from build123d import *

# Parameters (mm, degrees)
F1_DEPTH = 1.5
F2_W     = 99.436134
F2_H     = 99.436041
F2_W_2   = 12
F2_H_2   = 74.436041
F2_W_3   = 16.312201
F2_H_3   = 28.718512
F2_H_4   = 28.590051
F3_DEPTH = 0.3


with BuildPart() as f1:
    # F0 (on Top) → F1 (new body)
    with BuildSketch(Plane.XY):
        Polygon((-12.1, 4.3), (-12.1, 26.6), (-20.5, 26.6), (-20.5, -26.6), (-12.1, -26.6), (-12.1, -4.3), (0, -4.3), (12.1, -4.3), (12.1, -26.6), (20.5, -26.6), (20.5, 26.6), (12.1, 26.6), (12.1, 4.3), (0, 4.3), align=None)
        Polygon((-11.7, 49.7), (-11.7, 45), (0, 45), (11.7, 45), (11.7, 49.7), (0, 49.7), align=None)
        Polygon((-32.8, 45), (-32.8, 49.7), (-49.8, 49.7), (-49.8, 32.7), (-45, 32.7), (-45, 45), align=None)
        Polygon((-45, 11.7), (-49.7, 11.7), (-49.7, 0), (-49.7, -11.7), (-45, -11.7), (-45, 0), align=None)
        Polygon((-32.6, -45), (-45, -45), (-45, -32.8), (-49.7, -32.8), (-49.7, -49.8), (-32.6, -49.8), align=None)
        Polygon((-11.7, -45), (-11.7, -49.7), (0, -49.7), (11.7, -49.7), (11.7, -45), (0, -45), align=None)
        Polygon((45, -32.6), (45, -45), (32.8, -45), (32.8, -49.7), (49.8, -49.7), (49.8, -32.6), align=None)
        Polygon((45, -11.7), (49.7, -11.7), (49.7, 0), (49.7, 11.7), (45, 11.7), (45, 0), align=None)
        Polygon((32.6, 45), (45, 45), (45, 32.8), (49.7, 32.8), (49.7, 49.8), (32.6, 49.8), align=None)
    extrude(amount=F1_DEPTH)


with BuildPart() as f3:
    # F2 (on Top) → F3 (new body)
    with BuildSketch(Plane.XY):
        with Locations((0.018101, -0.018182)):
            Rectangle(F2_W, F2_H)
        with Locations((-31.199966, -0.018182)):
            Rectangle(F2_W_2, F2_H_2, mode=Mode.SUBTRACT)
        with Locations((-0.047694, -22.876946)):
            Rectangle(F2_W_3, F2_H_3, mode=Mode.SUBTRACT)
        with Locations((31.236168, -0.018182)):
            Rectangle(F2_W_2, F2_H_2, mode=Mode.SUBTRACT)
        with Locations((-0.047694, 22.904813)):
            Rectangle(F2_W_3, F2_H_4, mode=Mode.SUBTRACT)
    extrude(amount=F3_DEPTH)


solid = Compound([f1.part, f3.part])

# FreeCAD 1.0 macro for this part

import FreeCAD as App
import Part
import Sketcher


def add_polygon(sketch, points):
    """Adds a closed chain of lines whose ends are joined by coincident constraints."""
    first, n = sketch.GeometryCount, len(points)
    for a, b in zip(points, points[1:] + points[:1]):
        sketch.addGeometry(Part.LineSegment(App.Vector(*a, 0), App.Vector(*b, 0)), False)
    for i in range(n):
        sketch.addConstraint(Sketcher.Constraint("Coincident", first + i, 2, first + (i + 1) % n, 1))

doc = App.newDocument("Part")
params = doc.addObject("Spreadsheet::Sheet", "Params")
for row, (alias, value) in enumerate([
    ("sketch1_width", "17 mm"),
    ("sketch1_width2", "8.4 mm"),
    ("sketch1_width3", "24.2 mm"),
    ("sketch1_width4", "23.4 mm"),
    ("sketch1_width5", "4.8 mm"),
    ("pad1_length", "1.5 mm"),
    ("sketch2_width", "12 mm"),
    ("pad2_length", "0.3 mm"),
], start=1):
    params.set(f"A{row}", alias)
    params.set(f"B{row}", "=" + value)
    params.setAlias(f"B{row}", alias)

body = doc.addObject("PartDesign::Body", "Body")
body.AllowCompound = True

sketch1 = doc.addObject("Sketcher::SketchObject", "Sketch")
body.addObject(sketch1)
sketch1.AttachmentSupport = (doc.XY_Plane, [""])
sketch1.MapMode = "FlatFace"
add_polygon(sketch1, [(-12.1, 4.3), (-12.1, 26.6), (-20.5, 26.6), (-20.5, -26.6), (-12.1, -26.6), (-12.1, -4.3), (12.1, -4.3), (12.1, -26.6), (20.5, -26.6), (20.5, 26.6), (12.1, 26.6), (12.1, 4.3)])
add_polygon(sketch1, [(-11.7, 49.7), (-11.7, 45), (11.7, 45), (11.7, 49.7)])
add_polygon(sketch1, [(-32.8, 45), (-32.8, 49.7), (-49.8, 49.7), (-49.8, 32.7), (-45, 32.7), (-45, 45)])
add_polygon(sketch1, [(-45, 11.7), (-49.7, 11.7), (-49.7, -11.7), (-45, -11.7)])
add_polygon(sketch1, [(-32.6, -45), (-45, -45), (-45, -32.8), (-49.7, -32.8), (-49.7, -49.8), (-32.6, -49.8)])
add_polygon(sketch1, [(-11.7, -45), (-11.7, -49.7), (11.7, -49.7), (11.7, -45)])
add_polygon(sketch1, [(45, -32.6), (45, -45), (32.8, -45), (32.8, -49.7), (49.8, -49.7), (49.8, -32.6)])
add_polygon(sketch1, [(45, -11.7), (49.7, -11.7), (49.7, 11.7), (45, 11.7)])
add_polygon(sketch1, [(32.6, 45), (45, 45), (45, 32.8), (49.7, 32.8), (49.7, 49.8), (32.6, 49.8)])
sketch1.addConstraint(Sketcher.Constraint("Vertical", 0))
sketch1.addConstraint(Sketcher.Constraint("Horizontal", 1))
sketch1.addConstraint(Sketcher.Constraint("Vertical", 2))
sketch1.addConstraint(Sketcher.Constraint("Horizontal", 3))
sketch1.addConstraint(Sketcher.Constraint("Vertical", 4))
sketch1.addConstraint(Sketcher.Constraint("Horizontal", 5))
sketch1.addConstraint(Sketcher.Constraint("Vertical", 6))
sketch1.addConstraint(Sketcher.Constraint("Horizontal", 7))
sketch1.addConstraint(Sketcher.Constraint("Vertical", 8))
sketch1.addConstraint(Sketcher.Constraint("Horizontal", 9))
sketch1.addConstraint(Sketcher.Constraint("Vertical", 10))
sketch1.addConstraint(Sketcher.Constraint("Horizontal", 11))
sketch1.addConstraint(Sketcher.Constraint("Vertical", 12))
sketch1.addConstraint(Sketcher.Constraint("Horizontal", 13))
sketch1.addConstraint(Sketcher.Constraint("Vertical", 14))
sketch1.addConstraint(Sketcher.Constraint("Horizontal", 15))
sketch1.addConstraint(Sketcher.Constraint("Vertical", 16))
sketch1.addConstraint(Sketcher.Constraint("Horizontal", 17))
sketch1.addConstraint(Sketcher.Constraint("Vertical", 18))
sketch1.addConstraint(Sketcher.Constraint("Horizontal", 19))
sketch1.addConstraint(Sketcher.Constraint("Vertical", 20))
sketch1.addConstraint(Sketcher.Constraint("Horizontal", 21))
sketch1.addConstraint(Sketcher.Constraint("Horizontal", 22))
sketch1.addConstraint(Sketcher.Constraint("Vertical", 23))
sketch1.addConstraint(Sketcher.Constraint("Horizontal", 24))
sketch1.addConstraint(Sketcher.Constraint("Vertical", 25))
sketch1.addConstraint(Sketcher.Constraint("Horizontal", 26))
sketch1.addConstraint(Sketcher.Constraint("Vertical", 27))
sketch1.addConstraint(Sketcher.Constraint("Horizontal", 28))
sketch1.addConstraint(Sketcher.Constraint("Vertical", 29))
sketch1.addConstraint(Sketcher.Constraint("Horizontal", 30))
sketch1.addConstraint(Sketcher.Constraint("Vertical", 31))
sketch1.addConstraint(Sketcher.Constraint("Vertical", 32))
sketch1.addConstraint(Sketcher.Constraint("Horizontal", 33))
sketch1.addConstraint(Sketcher.Constraint("Vertical", 34))
sketch1.addConstraint(Sketcher.Constraint("Horizontal", 35))
sketch1.addConstraint(Sketcher.Constraint("Vertical", 36))
sketch1.addConstraint(Sketcher.Constraint("Horizontal", 37))
sketch1.addConstraint(Sketcher.Constraint("Vertical", 38))
sketch1.addConstraint(Sketcher.Constraint("Horizontal", 39))
sketch1.addConstraint(Sketcher.Constraint("Vertical", 40))
sketch1.addConstraint(Sketcher.Constraint("Horizontal", 41))
sketch1.addConstraint(Sketcher.Constraint("Horizontal", 42))
sketch1.addConstraint(Sketcher.Constraint("Vertical", 43))
sketch1.addConstraint(Sketcher.Constraint("Horizontal", 44))
sketch1.addConstraint(Sketcher.Constraint("Vertical", 45))
sketch1.addConstraint(Sketcher.Constraint("Horizontal", 46))
sketch1.addConstraint(Sketcher.Constraint("Vertical", 47))
sketch1.addConstraint(Sketcher.Constraint("Horizontal", 48))
sketch1.addConstraint(Sketcher.Constraint("Vertical", 49))
sketch1.addConstraint(Sketcher.Constraint("Horizontal", 50))
sketch1.addConstraint(Sketcher.Constraint("Vertical", 51))
sketch1.addConstraint(Sketcher.Constraint("Symmetric", 0, 2, 6, 2, -1, 1))
sketch1.addConstraint(Sketcher.Constraint("Symmetric", 2, 2, 8, 2, -1, 1))
sketch1.addConstraint(Sketcher.Constraint("Symmetric", 4, 2, 10, 2, -1, 1))
sketch1.addConstraint(Sketcher.Constraint("Symmetric", 14, 2, 32, 2, -1, 1))
sketch1.addConstraint(Sketcher.Constraint("Symmetric", 12, 2, 34, 2, -1, 1))
sketch1.addConstraint(Sketcher.Constraint("Symmetric", 20, 2, 36, 2, -1, 1))
sketch1.addConstraint(Sketcher.Constraint("Symmetric", 16, 2, 38, 2, -1, 1))
sketch1.addConstraint(Sketcher.Constraint("Symmetric", 22, 2, 42, 2, -1, 1))
sketch1.addConstraint(Sketcher.Constraint("Symmetric", 24, 2, 44, 2, -1, 1))
sketch1.addConstraint(Sketcher.Constraint("Symmetric", 26, 2, 46, 2, -1, 1))
sketch1.addConstraint(Sketcher.Constraint("Symmetric", 28, 2, 48, 2, -1, 1))
sketch1.addConstraint(Sketcher.Constraint("Symmetric", 30, 2, 50, 2, -1, 1))
sketch1.addConstraint(Sketcher.Constraint("Symmetric", 3, 2, 6, 2, -2))
sketch1.addConstraint(Sketcher.Constraint("Symmetric", 26, 2, 36, 2, -2))
sketch1.addConstraint(Sketcher.Constraint("Horizontal", 15, 2, 16, 2))
sketch1.addConstraint(Sketcher.Constraint("Horizontal", 13, 2, 20, 2))
sketch1.addConstraint(Sketcher.Constraint("Horizontal", 24, 2, 42, 2))
sketch1.addConstraint(Sketcher.Constraint("Vertical", 20, 2, 24, 2))
sketch1.addConstraint(Sketcher.Constraint("Vertical", 23, 2, 28, 2))
sketch1.addConstraint(Sketcher.Constraint("Vertical", 15, 2, 32, 2))
sketch1.addConstraint(Sketcher.Constraint("Equal", 17, 39))
sketch1.addConstraint(Sketcher.Constraint("Equal", 48, 12))
sketch1.addConstraint(Sketcher.Constraint("Equal", 39, 18))
sketch1.addConstraint(Sketcher.Constraint("Equal", 35, 23))
sketch1.addConstraint(Sketcher.Constraint("Equal", 37, 27))
sketch1.addConstraint(Sketcher.Constraint("Equal", 18, 29))
sketch1.addConstraint(Sketcher.Constraint("Equal", 46, 36))
sketch1.addConstraint(Sketcher.Constraint("DistanceX", 17, 2, 17, 1, 17.0))
sketch1.addConstraint(Sketcher.Constraint("DistanceX", 1, 2, 1, 1, 8.4))
sketch1.addConstraint(Sketcher.Constraint("DistanceX", 5, 1, 5, 2, 24.2))
sketch1.addConstraint(Sketcher.Constraint("DistanceX", 13, 1, 13, 2, 23.4))
sketch1.addConstraint(Sketcher.Constraint("DistanceX", 19, 1, 19, 2, 4.8))
sketch1.addConstraint(Sketcher.Constraint("DistanceX", 22, 2, 22, 1, 4.7))
sketch1.addConstraint(Sketcher.Constraint("DistanceX", 26, 2, 26, 1, 12.4))
sketch1.addConstraint(Sketcher.Constraint("DistanceY", 0, 1, 0, 2, 22.3))
sketch1.addConstraint(Sketcher.Constraint("DistanceY", 2, 2, 2, 1, 53.2))
sketch1.addConstraint(Sketcher.Constraint("DistanceY", -1, 1, 12, 2, 45.0))
sketch1.addConstraint(Sketcher.Constraint("DistanceX", 19, 2, -1, 1, 45.0))
sketch1.setExpression("Constraints[131]", "Params.sketch1_width")
sketch1.setExpression("Constraints[132]", "Params.sketch1_width2")
sketch1.setExpression("Constraints[133]", "Params.sketch1_width3")
sketch1.setExpression("Constraints[134]", "Params.sketch1_width4")
sketch1.setExpression("Constraints[135]", "Params.sketch1_width5")
pad1 = doc.addObject("PartDesign::Pad", "Pad")
body.addObject(pad1)
pad1.Profile = sketch1
pad1.setExpression("Length", "Params.pad1_length")
body2 = doc.addObject("PartDesign::Body", "Body001")

sketch2 = doc.addObject("Sketcher::SketchObject", "Sketch001")
body2.addObject(sketch2)
sketch2.AttachmentSupport = (doc.getObject("XY_Plane001"), [""])
sketch2.MapMode = "FlatFace"
add_polygon(sketch2, [(-50, 50), (-50, -50), (50, -50), (50, 50)])
add_polygon(sketch2, [(8, -37), (-8, -37), (-8, -9), (8, -9)])
add_polygon(sketch2, [(-25, -37), (-37, -37), (-37, 37), (-25, 37)])
add_polygon(sketch2, [(8, 9), (-8, 9), (-8, 37), (8, 37)])
add_polygon(sketch2, [(37, -37), (25, -37), (25, 37), (37, 37)])
sketch2.addConstraint(Sketcher.Constraint("Vertical", 0))
sketch2.addConstraint(Sketcher.Constraint("Horizontal", 1))
sketch2.addConstraint(Sketcher.Constraint("Vertical", 2))
sketch2.addConstraint(Sketcher.Constraint("Horizontal", 3))
sketch2.addConstraint(Sketcher.Constraint("Horizontal", 4))
sketch2.addConstraint(Sketcher.Constraint("Vertical", 5))
sketch2.addConstraint(Sketcher.Constraint("Horizontal", 6))
sketch2.addConstraint(Sketcher.Constraint("Vertical", 7))
sketch2.addConstraint(Sketcher.Constraint("Horizontal", 8))
sketch2.addConstraint(Sketcher.Constraint("Vertical", 9))
sketch2.addConstraint(Sketcher.Constraint("Horizontal", 10))
sketch2.addConstraint(Sketcher.Constraint("Vertical", 11))
sketch2.addConstraint(Sketcher.Constraint("Horizontal", 12))
sketch2.addConstraint(Sketcher.Constraint("Vertical", 13))
sketch2.addConstraint(Sketcher.Constraint("Horizontal", 14))
sketch2.addConstraint(Sketcher.Constraint("Vertical", 15))
sketch2.addConstraint(Sketcher.Constraint("Horizontal", 16))
sketch2.addConstraint(Sketcher.Constraint("Vertical", 17))
sketch2.addConstraint(Sketcher.Constraint("Horizontal", 18))
sketch2.addConstraint(Sketcher.Constraint("Vertical", 19))
sketch2.addConstraint(Sketcher.Constraint("Horizontal", 7, 2, 8, 2))
sketch2.addConstraint(Sketcher.Constraint("Horizontal", 10, 2, 13, 2))
sketch2.addConstraint(Sketcher.Constraint("Horizontal", 11, 2, 16, 2))
sketch2.addConstraint(Sketcher.Constraint("Horizontal", 14, 2, 17, 2))
sketch2.addConstraint(Sketcher.Constraint("Vertical", 5, 2, 12, 2))
sketch2.addConstraint(Sketcher.Constraint("Vertical", 7, 2, 14, 2))
sketch2.addConstraint(Sketcher.Constraint("Equal", 10, 16))
sketch2.addConstraint(Sketcher.Constraint("DistanceX", 8, 2, 8, 1, 12.0))
sketch2.addConstraint(Sketcher.Constraint("DistanceY", 0, 2, 4, 2, 12.5))
sketch2.addConstraint(Sketcher.Constraint("DistanceX", 0, 2, 8, 2, 12.5))
sketch2.addConstraint(Sketcher.Constraint("DistanceY", 9, 2, 3, 2, 12.5))
sketch2.addConstraint(Sketcher.Constraint("DistanceX", 16, 2, 1, 2, 24.5))
sketch2.addConstraint(Sketcher.Constraint("DistanceX", 4, 2, 4, 1, 16.312201))
sketch2.addConstraint(Sketcher.Constraint("DistanceY", 0, 2, 0, 1, 99.436041))
sketch2.addConstraint(Sketcher.Constraint("DistanceY", 5, 1, 5, 2, 28.718512))
sketch2.addConstraint(Sketcher.Constraint("DistanceY", 13, 1, 13, 2, 28.590051))
sketch2.addConstraint(Sketcher.Constraint("DistanceX", 1, 1, 1, 2, 99.436134))
sketch2.addConstraint(Sketcher.Constraint("DistanceY", -1, 1, 2, 2, 49.699838))
sketch2.addConstraint(Sketcher.Constraint("DistanceX", 0, 2, 4, 2, 41.496172))
sketch2.addConstraint(Sketcher.Constraint("DistanceX", 0, 2, -1, 1, 49.699966))
sketch2.setExpression("Constraints[47]", "Params.sketch2_width")
pad2 = doc.addObject("PartDesign::Pad", "Pad001")
body2.addObject(pad2)
pad2.Profile = sketch2
pad2.setExpression("Length", "Params.pad2_length")

doc.recompute()
